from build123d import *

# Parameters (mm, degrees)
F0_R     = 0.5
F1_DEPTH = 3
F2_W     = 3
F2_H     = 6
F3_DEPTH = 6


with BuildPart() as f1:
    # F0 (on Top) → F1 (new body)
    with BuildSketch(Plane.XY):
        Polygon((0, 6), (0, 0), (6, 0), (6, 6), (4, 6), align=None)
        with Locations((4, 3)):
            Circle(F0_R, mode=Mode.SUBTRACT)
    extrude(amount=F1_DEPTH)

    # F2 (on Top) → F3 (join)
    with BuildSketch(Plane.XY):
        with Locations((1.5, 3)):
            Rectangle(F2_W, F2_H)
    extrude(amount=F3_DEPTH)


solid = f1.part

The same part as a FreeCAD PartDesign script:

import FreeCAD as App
import Part
import Sketcher

doc = App.newDocument("Part")
body = doc.addObject("PartDesign::Body", "Body")

# Sketch on XY plane
sketch1 = doc.addObject("Sketcher::SketchObject", "Sketch")
body.addObject(sketch1)
sketch1.AttachmentSupport = (doc.XY_Plane, [""])
sketch1.MapMode = "FlatFace"
sketch1.addGeometry([
    Part.LineSegment(App.Vector(0, 6, 0), App.Vector(0, 0, 0)),  # 0
    Part.LineSegment(App.Vector(0, 0, 0), App.Vector(6, 0, 0)),  # 1
    Part.LineSegment(App.Vector(6, 0, 0), App.Vector(6, 6, 0)),  # 2
    Part.LineSegment(App.Vector(6, 6, 0), App.Vector(0, 6, 0)),  # 3
    Part.Circle(App.Vector(4, 3, 0), App.Vector(0, 0, 1), 0.5),  # 4
], False)
sketch1.addConstraint([
    Sketcher.Constraint("Coincident", 0, 2, 1, 1),
    Sketcher.Constraint("Coincident", 1, 2, 2, 1),
    Sketcher.Constraint("Coincident", 2, 2, 3, 1),
    Sketcher.Constraint("Coincident", 3, 2, 0, 1),
    Sketcher.Constraint("Vertical", 0),
    Sketcher.Constraint("Horizontal", 1),
    Sketcher.Constraint("Vertical", 2),
    Sketcher.Constraint("Horizontal", 3),
    Sketcher.Constraint("Coincident", 0, 2, -1, 1),
    Sketcher.Constraint("Equal", 3, 0),
    Sketcher.Constraint("Diameter", 4, 1.0),
    Sketcher.Constraint("DistanceX", 1, 1, 1, 2, 6.0),
    Sketcher.Constraint("DistanceX", -1, 1, 4, 3, 4.0),
    Sketcher.Constraint("DistanceY", -1, 1, 4, 3, 3.0),
])
pad1 = doc.addObject("PartDesign::Pad", "Pad")
body.addObject(pad1)
pad1.Profile = sketch1
pad1.Length = 3

# Sketch on XY plane
sketch2 = doc.addObject("Sketcher::SketchObject", "Sketch001")
body.addObject(sketch2)
sketch2.AttachmentSupport = (doc.XY_Plane, [""])
sketch2.MapMode = "FlatFace"
sketch2.addGeometry([
    Part.LineSegment(App.Vector(0, 6, 0), App.Vector(0, 0, 0)),
    Part.LineSegment(App.Vector(0, 0, 0), App.Vector(3, 0, 0)),
    Part.LineSegment(App.Vector(3, 0, 0), App.Vector(3, 6, 0)),
    Part.LineSegment(App.Vector(3, 6, 0), App.Vector(0, 6, 0)),
], False)
sketch2.addConstraint([
    Sketcher.Constraint("Coincident", 0, 2, 1, 1),
    Sketcher.Constraint("Coincident", 1, 2, 2, 1),
    Sketcher.Constraint("Coincident", 2, 2, 3, 1),
    Sketcher.Constraint("Coincident", 3, 2, 0, 1),
    Sketcher.Constraint("Vertical", 0),
    Sketcher.Constraint("Horizontal", 1),
    Sketcher.Constraint("Vertical", 2),
    Sketcher.Constraint("Horizontal", 3),
    Sketcher.Constraint("Coincident", 0, 2, -1, 1),
    Sketcher.Constraint("DistanceX", 1, 1, 1, 2, 3.0),
    Sketcher.Constraint("DistanceY", 0, 2, 0, 1, 6.0),
])
pad2 = doc.addObject("PartDesign::Pad", "Pad001")
body.addObject(pad2)
pad2.Profile = sketch2
pad2.Length = 6

doc.recompute()
